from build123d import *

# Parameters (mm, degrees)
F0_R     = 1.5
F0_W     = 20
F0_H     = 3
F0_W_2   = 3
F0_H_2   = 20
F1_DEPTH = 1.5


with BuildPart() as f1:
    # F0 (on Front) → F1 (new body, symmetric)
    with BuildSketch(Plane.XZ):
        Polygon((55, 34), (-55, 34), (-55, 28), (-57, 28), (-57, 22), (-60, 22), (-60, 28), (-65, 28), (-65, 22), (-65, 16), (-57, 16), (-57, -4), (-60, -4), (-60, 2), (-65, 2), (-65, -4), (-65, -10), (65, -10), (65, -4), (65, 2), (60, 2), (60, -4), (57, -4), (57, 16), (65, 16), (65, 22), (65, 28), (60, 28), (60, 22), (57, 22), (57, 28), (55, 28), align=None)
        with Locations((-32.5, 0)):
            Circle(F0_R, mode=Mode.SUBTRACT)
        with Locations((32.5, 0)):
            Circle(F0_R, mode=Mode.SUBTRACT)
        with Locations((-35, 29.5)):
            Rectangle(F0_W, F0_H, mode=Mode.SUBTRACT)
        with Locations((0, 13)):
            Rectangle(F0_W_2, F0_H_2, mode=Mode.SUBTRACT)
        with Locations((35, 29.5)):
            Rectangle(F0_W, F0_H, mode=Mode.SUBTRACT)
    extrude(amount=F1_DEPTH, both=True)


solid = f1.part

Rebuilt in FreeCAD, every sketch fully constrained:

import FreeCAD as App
import Part
import Sketcher
from FreeCAD import Vector

doc = App.newDocument("Part")
body = doc.addObject("PartDesign::Body", "Body")

# Sketch on XZ plane
sketch1 = body.newObject("Sketcher::SketchObject", "Sketch")
sketch1.AttachmentSupport = (doc.getObject("XZ_Plane"), [""])
sketch1.MapMode = "FlatFace"
sketch1.addGeometry([
    Part.LineSegment(Vector(55, 34, 0), Vector(-55, 34, 0)),  # 0
    Part.LineSegment(Vector(-55, 34, 0), Vector(-55, 28, 0)),  # 1
    Part.LineSegment(Vector(-55, 28, 0), Vector(-57, 28, 0)),  # 2
    Part.LineSegment(Vector(-57, 28, 0), Vector(-57, 22, 0)),  # 3
    Part.LineSegment(Vector(-57, 22, 0), Vector(-60, 22, 0)),  # 4
    Part.LineSegment(Vector(-60, 22, 0), Vector(-60, 28, 0)),  # 5
    Part.LineSegment(Vector(-60, 28, 0), Vector(-65, 28, 0)),  # 6
    Part.LineSegment(Vector(-65, 28, 0), Vector(-65, 16, 0)),  # 7
    Part.LineSegment(Vector(-65, 16, 0), Vector(-57, 16, 0)),  # 8
    Part.LineSegment(Vector(-57, 16, 0), Vector(-57, -4, 0)),  # 9
    Part.LineSegment(Vector(-57, -4, 0), Vector(-60, -4, 0)),  # 10
    Part.LineSegment(Vector(-60, -4, 0), Vector(-60, 2, 0)),  # 11
    Part.LineSegment(Vector(-60, 2, 0), Vector(-65, 2, 0)),  # 12
    Part.LineSegment(Vector(-65, 2, 0), Vector(-65, -10, 0)),  # 13
    Part.LineSegment(Vector(-65, -10, 0), Vector(65, -10, 0)),  # 14
    Part.LineSegment(Vector(65, -10, 0), Vector(65, 2, 0)),  # 15
    Part.LineSegment(Vector(65, 2, 0), Vector(60, 2, 0)),  # 16
    Part.LineSegment(Vector(60, 2, 0), Vector(60, -4, 0)),  # 17
    Part.LineSegment(Vector(60, -4, 0), Vector(57, -4, 0)),  # 18
    Part.LineSegment(Vector(57, -4, 0), Vector(57, 16, 0)),  # 19
    Part.LineSegment(Vector(57, 16, 0), Vector(65, 16, 0)),  # 20
    Part.LineSegment(Vector(65, 16, 0), Vector(65, 28, 0)),  # 21
    Part.LineSegment(Vector(65, 28, 0), Vector(60, 28, 0)),  # 22
    Part.LineSegment(Vector(60, 28, 0), Vector(60, 22, 0)),  # 23
    Part.LineSegment(Vector(60, 22, 0), Vector(57, 22, 0)),  # 24
    Part.LineSegment(Vector(57, 22, 0), Vector(57, 28, 0)),  # 25
    Part.LineSegment(Vector(57, 28, 0), Vector(55, 28, 0)),  # 26
    Part.LineSegment(Vector(55, 28, 0), Vector(55, 34, 0)),  # 27
    Part.Circle(Vector(-32.5, 0, 0), Vector(0, 0, 1), 1.5),  # 28
    Part.Circle(Vector(32.5, 0, 0), Vector(0, 0, 1), 1.5),  # 29
    Part.LineSegment(Vector(1.5, 3, 0), Vector(-1.5, 3, 0)),  # 30
    Part.LineSegment(Vector(-1.5, 3, 0), Vector(-1.5, 23, 0)),  # 31
    Part.LineSegment(Vector(-1.5, 23, 0), Vector(1.5, 23, 0)),  # 32
    Part.LineSegment(Vector(1.5, 23, 0), Vector(1.5, 3, 0)),  # 33
    Part.LineSegment(Vector(-25, 28, 0), Vector(-45, 28, 0)),  # 34
    Part.LineSegment(Vector(-45, 28, 0), Vector(-45, 31, 0)),  # 35
    Part.LineSegment(Vector(-45, 31, 0), Vector(-25, 31, 0)),  # 36
    Part.LineSegment(Vector(-25, 31, 0), Vector(-25, 28, 0)),  # 37
    Part.LineSegment(Vector(45, 28, 0), Vector(25, 28, 0)),  # 38
    Part.LineSegment(Vector(25, 28, 0), Vector(25, 31, 0)),  # 39
    Part.LineSegment(Vector(25, 31, 0), Vector(45, 31, 0)),  # 40
    Part.LineSegment(Vector(45, 31, 0), Vector(45, 28, 0)),  # 41
], False)
sketch1.addConstraint([
    Sketcher.Constraint("Coincident", 0, 2, 1, 1),
    Sketcher.Constraint("Coincident", 1, 2, 2, 1),
    Sketcher.Constraint("Coincident", 2, 2, 3, 1),
    Sketcher.Constraint("Coincident", 3, 2, 4, 1),
    Sketcher.Constraint("Coincident", 4, 2, 5, 1),
    Sketcher.Constraint("Coincident", 5, 2, 6, 1),
    Sketcher.Constraint("Coincident", 6, 2, 7, 1),
    Sketcher.Constraint("Coincident", 7, 2, 8, 1),
    Sketcher.Constraint("Coincident", 8, 2, 9, 1),
    Sketcher.Constraint("Coincident", 9, 2, 10, 1),
    Sketcher.Constraint("Coincident", 10, 2, 11, 1),
    Sketcher.Constraint("Coincident", 11, 2, 12, 1),
    Sketcher.Constraint("Coincident", 12, 2, 13, 1),
    Sketcher.Constraint("Coincident", 13, 2, 14, 1),
    Sketcher.Constraint("Coincident", 14, 2, 15, 1),
    Sketcher.Constraint("Coincident", 15, 2, 16, 1),
    Sketcher.Constraint("Coincident", 16, 2, 17, 1),
    Sketcher.Constraint("Coincident", 17, 2, 18, 1),
    Sketcher.Constraint("Coincident", 18, 2, 19, 1),
    Sketcher.Constraint("Coincident", 19, 2, 20, 1),
    Sketcher.Constraint("Coincident", 20, 2, 21, 1),
    Sketcher.Constraint("Coincident", 21, 2, 22, 1),
    Sketcher.Constraint("Coincident", 22, 2, 23, 1),
    Sketcher.Constraint("Coincident", 23, 2, 24, 1),
    Sketcher.Constraint("Coincident", 24, 2, 25, 1),
    Sketcher.Constraint("Coincident", 25, 2, 26, 1),
    Sketcher.Constraint("Coincident", 26, 2, 27, 1),
    Sketcher.Constraint("Coincident", 27, 2, 0, 1),
    Sketcher.Constraint("Coincident", 30, 2, 31, 1),
    Sketcher.Constraint("Coincident", 31, 2, 32, 1),
    Sketcher.Constraint("Coincident", 32, 2, 33, 1),
    Sketcher.Constraint("Coincident", 33, 2, 30, 1),
    Sketcher.Constraint("Coincident", 34, 2, 35, 1),
    Sketcher.Constraint("Coincident", 35, 2, 36, 1),
    Sketcher.Constraint("Coincident", 36, 2, 37, 1),
    Sketcher.Constraint("Coincident", 37, 2, 34, 1),
    Sketcher.Constraint("Coincident", 38, 2, 39, 1),
    Sketcher.Constraint("Coincident", 39, 2, 40, 1),
    Sketcher.Constraint("Coincident", 40, 2, 41, 1),
    Sketcher.Constraint("Coincident", 41, 2, 38, 1),
    Sketcher.Constraint("Horizontal", 0),
    Sketcher.Constraint("Vertical", 1),
    Sketcher.Constraint("Horizontal", 2),
    Sketcher.Constraint("Vertical", 3),
    Sketcher.Constraint("Horizontal", 4),
    Sketcher.Constraint("Vertical", 5),
    Sketcher.Constraint("Horizontal", 6),
    Sketcher.Constraint("Vertical", 7),
    Sketcher.Constraint("Horizontal", 8),
    Sketcher.Constraint("Vertical", 9),
    Sketcher.Constraint("Horizontal", 10),
    Sketcher.Constraint("Vertical", 11),
    Sketcher.Constraint("Horizontal", 12),
    Sketcher.Constraint("Vertical", 13),
    Sketcher.Constraint("Horizontal", 14),
    Sketcher.Constraint("Vertical", 15),
    Sketcher.Constraint("Horizontal", 16),
    Sketcher.Constraint("Vertical", 17),
    Sketcher.Constraint("Horizontal", 18),
    Sketcher.Constraint("Vertical", 19),
    Sketcher.Constraint("Horizontal", 20),
    Sketcher.Constraint("Vertical", 21),
    Sketcher.Constraint("Horizontal", 22),
    Sketcher.Constraint("Vertical", 23),
    Sketcher.Constraint("Horizontal", 24),
    Sketcher.Constraint("Vertical", 25),
    Sketcher.Constraint("Horizontal", 26),
    Sketcher.Constraint("Vertical", 27),
    Sketcher.Constraint("Horizontal", 30),
    Sketcher.Constraint("Vertical", 31),
    Sketcher.Constraint("Horizontal", 32),
    Sketcher.Constraint("Vertical", 33),
    Sketcher.Constraint("Horizontal", 34),
    Sketcher.Constraint("Vertical", 35),
    Sketcher.Constraint("Horizontal", 36),
    Sketcher.Constraint("Vertical", 37),
    Sketcher.Constraint("Horizontal", 38),
    Sketcher.Constraint("Vertical", 39),
    Sketcher.Constraint("Horizontal", 40),
    Sketcher.Constraint("Vertical", 41),
    Sketcher.Constraint("Equal", 28, 29),
    Sketcher.Constraint("Symmetric", 28, 3, 29, 3, -1, 1),
    Sketcher.Constraint("Symmetric", 12, 2, 15, 2, -2),
    Sketcher.Constraint("Symmetric", 10, 2, 17, 2, -2),
    Sketcher.Constraint("Symmetric", 8, 2, 19, 2, -2),
    Sketcher.Constraint("Symmetric", 6, 2, 21, 2, -2),
    Sketcher.Constraint("Symmetric", 4, 2, 23, 2, -2),
    Sketcher.Constraint("Symmetric", 2, 2, 25, 2, -2),
    Sketcher.Constraint("Symmetric", 37, 2, 38, 2, -2),
    Sketcher.Constraint("Symmetric", 35, 2, 40, 2, -2),
    Sketcher.Constraint("PointOnObject", 28, 3, -1),
    Sketcher.Constraint("Horizontal", 2, 2, 5, 2),
    Sketcher.Constraint("Horizontal", 26, 2, 34, 2),
    Sketcher.Constraint("Vertical", 3, 2, 8, 2),
    Sketcher.Constraint("Vertical", 5, 2, 10, 2),
    Sketcher.Constraint("Vertical", 7, 2, 12, 2),
    Sketcher.Constraint("Equal", 2, 26),
    Sketcher.Constraint("Equal", 24, 30),
    Sketcher.Constraint("Equal", 1, 3),
    Sketcher.Constraint("Equal", 40, 9),
    Sketcher.Constraint("Equal", 5, 11),
    Sketcher.Constraint("Equal", 7, 13),
    Sketcher.Constraint("Equal", 19, 31),
    Sketcher.Constraint("Equal", 32, 35),
    Sketcher.Constraint("Diameter", 28, 3.0),
    Sketcher.Constraint("DistanceX", 0, 2, 0, 1, 110.0),
    Sketcher.Constraint("DistanceX", 2, 2, 2, 1, 2.0),
    Sketcher.Constraint("DistanceX", 4, 2, 4, 1, 3.0),
    Sketcher.Constraint("DistanceX", 6, 2, 6, 1, 5.0),
    Sketcher.Constraint("DistanceX", 34, 2, 34, 1, 20.0),
    Sketcher.Constraint("DistanceY", 1, 2, 1, 1, 6.0),
    Sketcher.Constraint("DistanceY", 7, 2, 7, 1, 12.0),
    Sketcher.Constraint("DistanceY", -1, 1, 0, 2, 34.0),
    Sketcher.Constraint("DistanceY", -1, 1, 30, 2, 3.0),
    Sketcher.Constraint("DistanceX", 34, 2, -1, 1, 45.0),
    Sketcher.Constraint("DistanceX", 28, 3, 29, 3, 65.0),
    Sketcher.Constraint("DistanceX", 28, 3, 30, 2, 31.0),
])
pad1 = body.newObject("PartDesign::Pad", "Pad")
pad1.Profile = sketch1
pad1.Length = 3
pad1.Midplane = True

doc.recompute()
